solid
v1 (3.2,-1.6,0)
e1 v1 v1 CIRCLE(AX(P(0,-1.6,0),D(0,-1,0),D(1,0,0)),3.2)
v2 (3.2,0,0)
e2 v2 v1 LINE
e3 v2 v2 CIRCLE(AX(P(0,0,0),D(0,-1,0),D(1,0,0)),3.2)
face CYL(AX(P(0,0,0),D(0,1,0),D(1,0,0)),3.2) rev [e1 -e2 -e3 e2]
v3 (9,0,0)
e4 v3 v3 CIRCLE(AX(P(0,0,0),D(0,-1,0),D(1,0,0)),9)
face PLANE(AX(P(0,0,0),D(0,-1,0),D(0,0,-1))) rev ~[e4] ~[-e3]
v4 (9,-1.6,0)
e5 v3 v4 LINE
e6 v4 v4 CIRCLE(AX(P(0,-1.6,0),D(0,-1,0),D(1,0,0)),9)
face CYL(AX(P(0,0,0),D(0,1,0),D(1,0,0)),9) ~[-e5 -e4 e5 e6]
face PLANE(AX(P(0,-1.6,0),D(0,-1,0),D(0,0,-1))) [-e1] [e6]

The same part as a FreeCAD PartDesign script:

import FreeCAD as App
import Part
import Sketcher

V = App.Vector
Q = App.Units.Quantity

doc = App.newDocument("Part")
body = doc.addObject("PartDesign::Body", "Body")

# Sketch on XZ plane
sketch1 = body.newObject("Sketcher::SketchObject", "Sketch")
sketch1.AttachmentSupport = (doc.getObject("XZ_Plane"), [""])
sketch1.MapMode = "FlatFace"
sketch1.addGeometry(Part.Circle(V(0, 0, 0), V(0, 0, 1), 9), False)
sketch1.addGeometry(Part.Circle(V(0, 0, 0), V(0, 0, 1), 3.2), False)
sketch1.addConstraint(Sketcher.Constraint("Coincident", 0, 3, -1, 1))
sketch1.addConstraint(Sketcher.Constraint("Coincident", 1, 3, -1, 1))
sketch1.addConstraint(Sketcher.Constraint("Diameter", 0, Q("18 mm")))
sketch1.addConstraint(Sketcher.Constraint("Diameter", 1, Q("6.4 mm")))
pad1 = body.newObject("PartDesign::Pad", "Pad")
pad1.Profile = sketch1
pad1.Length = 1.6

doc.recompute()
